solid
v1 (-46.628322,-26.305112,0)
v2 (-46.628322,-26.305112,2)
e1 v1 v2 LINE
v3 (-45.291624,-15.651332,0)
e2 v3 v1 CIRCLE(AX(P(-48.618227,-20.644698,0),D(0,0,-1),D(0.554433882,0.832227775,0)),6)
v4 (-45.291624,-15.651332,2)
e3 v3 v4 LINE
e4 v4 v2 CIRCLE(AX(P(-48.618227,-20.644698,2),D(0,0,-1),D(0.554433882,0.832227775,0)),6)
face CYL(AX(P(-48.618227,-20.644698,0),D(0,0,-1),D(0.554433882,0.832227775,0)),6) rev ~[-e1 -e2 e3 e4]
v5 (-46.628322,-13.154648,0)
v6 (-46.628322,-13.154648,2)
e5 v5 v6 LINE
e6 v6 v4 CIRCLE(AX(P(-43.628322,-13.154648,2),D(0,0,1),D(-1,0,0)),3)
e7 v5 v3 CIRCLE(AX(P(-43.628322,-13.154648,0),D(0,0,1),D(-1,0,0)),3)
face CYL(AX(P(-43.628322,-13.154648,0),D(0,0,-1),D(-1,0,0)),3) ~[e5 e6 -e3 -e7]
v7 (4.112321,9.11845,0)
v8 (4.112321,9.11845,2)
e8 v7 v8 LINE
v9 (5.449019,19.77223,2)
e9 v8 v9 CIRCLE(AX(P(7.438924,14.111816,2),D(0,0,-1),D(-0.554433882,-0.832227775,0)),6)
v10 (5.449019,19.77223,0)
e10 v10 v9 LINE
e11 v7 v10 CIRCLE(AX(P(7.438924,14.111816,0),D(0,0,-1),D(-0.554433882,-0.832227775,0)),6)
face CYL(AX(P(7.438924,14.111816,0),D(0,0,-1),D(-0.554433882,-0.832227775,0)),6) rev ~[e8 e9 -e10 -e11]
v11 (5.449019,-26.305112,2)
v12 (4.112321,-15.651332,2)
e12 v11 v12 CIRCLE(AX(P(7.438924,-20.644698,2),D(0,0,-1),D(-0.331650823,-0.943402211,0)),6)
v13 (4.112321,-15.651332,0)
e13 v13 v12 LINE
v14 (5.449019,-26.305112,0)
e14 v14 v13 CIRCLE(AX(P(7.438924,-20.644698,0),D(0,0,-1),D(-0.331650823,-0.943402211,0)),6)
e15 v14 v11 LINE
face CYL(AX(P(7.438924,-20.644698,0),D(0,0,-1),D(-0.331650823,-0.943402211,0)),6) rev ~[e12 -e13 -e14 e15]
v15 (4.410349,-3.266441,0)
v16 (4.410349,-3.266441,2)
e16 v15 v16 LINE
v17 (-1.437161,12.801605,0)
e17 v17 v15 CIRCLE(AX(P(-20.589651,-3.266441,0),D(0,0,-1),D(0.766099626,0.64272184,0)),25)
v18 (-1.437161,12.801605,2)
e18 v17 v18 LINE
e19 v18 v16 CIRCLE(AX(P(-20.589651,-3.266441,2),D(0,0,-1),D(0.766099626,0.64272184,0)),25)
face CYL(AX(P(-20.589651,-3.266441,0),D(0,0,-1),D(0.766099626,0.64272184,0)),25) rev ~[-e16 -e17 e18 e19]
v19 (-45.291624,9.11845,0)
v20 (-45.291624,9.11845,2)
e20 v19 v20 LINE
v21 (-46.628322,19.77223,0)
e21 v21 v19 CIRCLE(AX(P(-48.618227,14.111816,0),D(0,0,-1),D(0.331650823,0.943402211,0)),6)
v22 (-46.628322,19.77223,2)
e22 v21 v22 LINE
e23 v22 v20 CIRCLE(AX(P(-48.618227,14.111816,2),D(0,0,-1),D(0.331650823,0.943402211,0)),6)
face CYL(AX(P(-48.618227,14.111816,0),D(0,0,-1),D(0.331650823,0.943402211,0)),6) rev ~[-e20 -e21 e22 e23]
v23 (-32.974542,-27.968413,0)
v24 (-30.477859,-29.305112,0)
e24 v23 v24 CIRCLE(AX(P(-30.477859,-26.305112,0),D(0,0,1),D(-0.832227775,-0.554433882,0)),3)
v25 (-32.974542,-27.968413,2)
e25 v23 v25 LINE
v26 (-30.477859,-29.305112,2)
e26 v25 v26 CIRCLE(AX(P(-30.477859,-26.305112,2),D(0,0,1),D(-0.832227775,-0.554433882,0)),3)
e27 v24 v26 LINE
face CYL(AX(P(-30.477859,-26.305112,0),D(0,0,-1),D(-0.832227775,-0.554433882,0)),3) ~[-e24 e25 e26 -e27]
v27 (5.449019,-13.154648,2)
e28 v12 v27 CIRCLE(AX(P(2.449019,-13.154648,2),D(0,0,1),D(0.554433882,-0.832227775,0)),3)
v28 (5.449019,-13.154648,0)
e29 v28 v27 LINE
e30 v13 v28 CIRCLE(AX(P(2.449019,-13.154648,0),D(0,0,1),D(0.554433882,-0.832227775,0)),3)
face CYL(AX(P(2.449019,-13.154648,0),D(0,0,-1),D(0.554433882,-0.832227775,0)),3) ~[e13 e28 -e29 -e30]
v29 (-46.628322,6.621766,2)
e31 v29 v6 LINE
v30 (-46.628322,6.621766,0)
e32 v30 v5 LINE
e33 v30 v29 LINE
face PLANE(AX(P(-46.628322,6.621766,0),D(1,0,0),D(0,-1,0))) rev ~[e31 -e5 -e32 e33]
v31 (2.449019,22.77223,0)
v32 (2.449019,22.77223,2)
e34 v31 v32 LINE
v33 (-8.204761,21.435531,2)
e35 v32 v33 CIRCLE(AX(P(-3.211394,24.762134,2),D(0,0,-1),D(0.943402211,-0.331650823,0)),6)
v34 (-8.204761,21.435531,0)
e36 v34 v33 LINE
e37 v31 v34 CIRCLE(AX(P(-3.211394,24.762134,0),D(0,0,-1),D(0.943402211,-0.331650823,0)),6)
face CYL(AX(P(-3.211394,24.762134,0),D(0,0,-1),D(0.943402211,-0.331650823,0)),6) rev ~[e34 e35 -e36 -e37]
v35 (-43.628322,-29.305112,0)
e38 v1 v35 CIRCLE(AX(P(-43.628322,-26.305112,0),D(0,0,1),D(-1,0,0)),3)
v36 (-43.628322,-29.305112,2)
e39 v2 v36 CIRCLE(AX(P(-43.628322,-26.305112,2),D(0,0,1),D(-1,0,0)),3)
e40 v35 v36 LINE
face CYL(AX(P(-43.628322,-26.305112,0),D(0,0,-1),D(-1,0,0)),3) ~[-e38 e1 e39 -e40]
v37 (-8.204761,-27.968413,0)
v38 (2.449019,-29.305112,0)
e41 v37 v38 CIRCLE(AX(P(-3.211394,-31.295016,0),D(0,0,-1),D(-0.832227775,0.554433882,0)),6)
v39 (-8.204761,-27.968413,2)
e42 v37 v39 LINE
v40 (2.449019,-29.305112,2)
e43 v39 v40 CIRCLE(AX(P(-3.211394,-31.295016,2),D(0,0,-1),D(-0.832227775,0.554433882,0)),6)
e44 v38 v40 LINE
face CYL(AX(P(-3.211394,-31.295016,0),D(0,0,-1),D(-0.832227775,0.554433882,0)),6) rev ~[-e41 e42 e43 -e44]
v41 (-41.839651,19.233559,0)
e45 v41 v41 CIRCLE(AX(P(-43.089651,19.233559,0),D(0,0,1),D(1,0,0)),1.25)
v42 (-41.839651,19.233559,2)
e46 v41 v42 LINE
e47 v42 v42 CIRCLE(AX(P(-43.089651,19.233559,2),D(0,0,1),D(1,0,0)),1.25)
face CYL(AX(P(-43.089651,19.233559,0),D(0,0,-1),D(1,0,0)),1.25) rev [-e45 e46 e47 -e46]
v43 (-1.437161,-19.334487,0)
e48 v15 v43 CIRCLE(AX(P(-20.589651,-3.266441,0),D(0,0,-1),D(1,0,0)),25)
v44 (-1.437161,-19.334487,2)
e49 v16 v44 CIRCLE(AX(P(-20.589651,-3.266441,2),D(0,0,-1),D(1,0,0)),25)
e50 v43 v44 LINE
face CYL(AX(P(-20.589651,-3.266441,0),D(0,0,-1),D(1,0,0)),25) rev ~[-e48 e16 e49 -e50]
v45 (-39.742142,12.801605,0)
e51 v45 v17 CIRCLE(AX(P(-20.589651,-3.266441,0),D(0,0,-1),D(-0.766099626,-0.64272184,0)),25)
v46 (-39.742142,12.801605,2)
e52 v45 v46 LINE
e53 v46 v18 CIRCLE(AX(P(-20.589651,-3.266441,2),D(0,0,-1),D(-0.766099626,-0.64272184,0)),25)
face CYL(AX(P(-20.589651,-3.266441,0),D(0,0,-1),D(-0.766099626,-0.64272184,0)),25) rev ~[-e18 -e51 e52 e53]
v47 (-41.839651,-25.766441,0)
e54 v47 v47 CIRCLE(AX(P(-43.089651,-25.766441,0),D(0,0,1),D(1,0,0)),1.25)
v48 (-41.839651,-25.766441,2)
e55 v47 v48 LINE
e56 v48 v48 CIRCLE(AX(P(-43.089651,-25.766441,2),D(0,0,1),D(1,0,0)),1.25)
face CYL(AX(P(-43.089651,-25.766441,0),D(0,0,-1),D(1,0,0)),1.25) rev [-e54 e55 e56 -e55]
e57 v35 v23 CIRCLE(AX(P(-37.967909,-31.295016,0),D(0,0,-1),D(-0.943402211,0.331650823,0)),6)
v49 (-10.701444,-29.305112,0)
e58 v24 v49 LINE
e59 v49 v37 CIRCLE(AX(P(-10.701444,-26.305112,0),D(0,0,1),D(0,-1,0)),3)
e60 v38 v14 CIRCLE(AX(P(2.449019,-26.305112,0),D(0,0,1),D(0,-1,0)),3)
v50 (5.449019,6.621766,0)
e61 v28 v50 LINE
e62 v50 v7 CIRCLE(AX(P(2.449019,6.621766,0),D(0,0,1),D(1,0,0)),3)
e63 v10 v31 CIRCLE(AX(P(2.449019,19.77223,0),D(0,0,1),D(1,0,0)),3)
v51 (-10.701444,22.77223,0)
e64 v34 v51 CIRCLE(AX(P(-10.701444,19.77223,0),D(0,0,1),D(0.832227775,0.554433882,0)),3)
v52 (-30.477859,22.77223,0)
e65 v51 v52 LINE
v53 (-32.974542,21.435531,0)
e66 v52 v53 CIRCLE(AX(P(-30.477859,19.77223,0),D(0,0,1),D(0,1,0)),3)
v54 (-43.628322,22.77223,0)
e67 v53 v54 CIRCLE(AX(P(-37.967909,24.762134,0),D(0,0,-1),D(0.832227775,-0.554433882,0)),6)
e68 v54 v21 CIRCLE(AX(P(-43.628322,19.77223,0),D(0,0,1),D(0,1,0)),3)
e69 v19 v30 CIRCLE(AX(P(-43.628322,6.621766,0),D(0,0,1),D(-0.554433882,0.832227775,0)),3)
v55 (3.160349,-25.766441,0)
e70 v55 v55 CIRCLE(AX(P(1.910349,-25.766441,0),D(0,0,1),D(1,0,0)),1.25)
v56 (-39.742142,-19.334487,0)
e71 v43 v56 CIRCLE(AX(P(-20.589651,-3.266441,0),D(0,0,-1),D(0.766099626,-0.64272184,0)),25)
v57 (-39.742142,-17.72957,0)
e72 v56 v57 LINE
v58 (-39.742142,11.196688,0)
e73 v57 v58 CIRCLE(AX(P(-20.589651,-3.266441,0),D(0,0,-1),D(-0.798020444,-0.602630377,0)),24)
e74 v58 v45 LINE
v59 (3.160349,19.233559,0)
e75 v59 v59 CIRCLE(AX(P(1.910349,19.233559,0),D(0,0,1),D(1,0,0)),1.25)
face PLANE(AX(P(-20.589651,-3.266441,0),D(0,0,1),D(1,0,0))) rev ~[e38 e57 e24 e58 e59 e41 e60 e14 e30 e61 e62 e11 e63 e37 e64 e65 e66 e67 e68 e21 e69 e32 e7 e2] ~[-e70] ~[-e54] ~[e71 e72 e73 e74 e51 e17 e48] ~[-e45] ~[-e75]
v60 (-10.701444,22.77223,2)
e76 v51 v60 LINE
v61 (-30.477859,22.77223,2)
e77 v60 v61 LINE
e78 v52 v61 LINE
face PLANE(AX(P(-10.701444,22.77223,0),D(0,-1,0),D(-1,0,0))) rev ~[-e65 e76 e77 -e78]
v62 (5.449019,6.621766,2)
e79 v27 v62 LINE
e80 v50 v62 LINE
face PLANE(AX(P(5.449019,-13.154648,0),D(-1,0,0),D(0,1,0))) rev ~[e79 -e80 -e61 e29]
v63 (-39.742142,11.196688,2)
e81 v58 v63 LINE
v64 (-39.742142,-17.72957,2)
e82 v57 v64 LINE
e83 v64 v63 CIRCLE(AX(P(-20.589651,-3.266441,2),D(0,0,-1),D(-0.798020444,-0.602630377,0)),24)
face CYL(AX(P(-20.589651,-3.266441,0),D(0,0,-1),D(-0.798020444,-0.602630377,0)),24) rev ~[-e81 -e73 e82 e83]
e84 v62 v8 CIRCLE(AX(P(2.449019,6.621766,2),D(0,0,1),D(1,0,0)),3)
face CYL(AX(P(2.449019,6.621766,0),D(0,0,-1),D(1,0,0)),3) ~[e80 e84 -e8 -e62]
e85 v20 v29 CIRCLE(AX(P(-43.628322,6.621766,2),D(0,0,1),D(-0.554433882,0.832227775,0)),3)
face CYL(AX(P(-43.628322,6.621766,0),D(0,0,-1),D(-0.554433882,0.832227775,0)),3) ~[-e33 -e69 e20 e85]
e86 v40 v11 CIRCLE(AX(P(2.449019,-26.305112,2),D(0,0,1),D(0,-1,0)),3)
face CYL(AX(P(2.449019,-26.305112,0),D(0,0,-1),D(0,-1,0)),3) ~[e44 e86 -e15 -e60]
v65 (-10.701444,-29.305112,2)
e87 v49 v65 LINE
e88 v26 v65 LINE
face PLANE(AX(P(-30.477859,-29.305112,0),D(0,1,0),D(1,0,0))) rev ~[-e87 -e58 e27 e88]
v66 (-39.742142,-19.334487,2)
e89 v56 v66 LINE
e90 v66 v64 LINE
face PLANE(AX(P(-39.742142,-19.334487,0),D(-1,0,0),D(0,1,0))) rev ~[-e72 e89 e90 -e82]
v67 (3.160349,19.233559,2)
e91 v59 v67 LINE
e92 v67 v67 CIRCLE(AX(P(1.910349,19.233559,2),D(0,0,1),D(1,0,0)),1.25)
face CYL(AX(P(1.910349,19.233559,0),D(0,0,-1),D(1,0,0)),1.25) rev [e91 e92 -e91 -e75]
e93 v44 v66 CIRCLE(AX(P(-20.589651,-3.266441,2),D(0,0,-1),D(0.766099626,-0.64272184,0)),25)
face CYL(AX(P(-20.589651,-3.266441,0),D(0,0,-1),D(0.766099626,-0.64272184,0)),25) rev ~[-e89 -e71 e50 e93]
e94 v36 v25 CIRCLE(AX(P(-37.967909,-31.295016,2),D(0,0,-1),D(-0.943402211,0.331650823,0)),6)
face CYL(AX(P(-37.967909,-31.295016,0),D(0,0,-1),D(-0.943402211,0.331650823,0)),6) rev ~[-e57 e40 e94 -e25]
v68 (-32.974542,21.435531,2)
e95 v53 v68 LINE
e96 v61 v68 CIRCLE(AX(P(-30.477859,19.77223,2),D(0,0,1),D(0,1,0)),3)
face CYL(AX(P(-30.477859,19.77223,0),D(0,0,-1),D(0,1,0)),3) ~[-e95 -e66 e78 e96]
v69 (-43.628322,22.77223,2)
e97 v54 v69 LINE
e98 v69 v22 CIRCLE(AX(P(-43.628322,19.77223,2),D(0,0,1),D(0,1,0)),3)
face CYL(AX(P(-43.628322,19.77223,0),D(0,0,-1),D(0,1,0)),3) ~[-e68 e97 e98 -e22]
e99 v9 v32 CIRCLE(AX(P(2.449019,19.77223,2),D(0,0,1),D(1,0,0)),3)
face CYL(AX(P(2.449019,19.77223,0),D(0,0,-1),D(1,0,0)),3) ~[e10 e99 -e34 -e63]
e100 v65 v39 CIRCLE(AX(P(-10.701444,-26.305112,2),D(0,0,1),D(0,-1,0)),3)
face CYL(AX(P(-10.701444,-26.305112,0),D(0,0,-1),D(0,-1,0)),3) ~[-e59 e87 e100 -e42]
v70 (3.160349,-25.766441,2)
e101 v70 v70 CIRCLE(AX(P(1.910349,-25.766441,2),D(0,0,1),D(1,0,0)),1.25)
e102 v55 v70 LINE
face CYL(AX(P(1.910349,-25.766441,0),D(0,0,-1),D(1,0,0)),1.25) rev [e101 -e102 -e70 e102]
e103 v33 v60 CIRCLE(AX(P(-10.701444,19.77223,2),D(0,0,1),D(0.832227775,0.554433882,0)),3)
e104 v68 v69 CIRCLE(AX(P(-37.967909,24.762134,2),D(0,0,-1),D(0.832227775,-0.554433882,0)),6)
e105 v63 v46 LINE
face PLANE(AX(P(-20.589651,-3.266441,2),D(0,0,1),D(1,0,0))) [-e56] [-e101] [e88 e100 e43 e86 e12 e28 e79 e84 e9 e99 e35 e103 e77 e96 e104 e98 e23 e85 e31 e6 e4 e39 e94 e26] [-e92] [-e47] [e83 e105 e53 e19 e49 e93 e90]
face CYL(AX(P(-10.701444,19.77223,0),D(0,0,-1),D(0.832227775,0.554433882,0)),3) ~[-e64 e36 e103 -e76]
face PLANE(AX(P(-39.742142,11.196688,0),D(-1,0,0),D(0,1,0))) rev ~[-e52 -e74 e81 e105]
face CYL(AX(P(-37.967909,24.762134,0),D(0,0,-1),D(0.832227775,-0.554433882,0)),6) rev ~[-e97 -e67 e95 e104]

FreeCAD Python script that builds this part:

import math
import FreeCAD as App
import Part
import Sketcher
from FreeCAD import Vector
Q = App.Units.Quantity

doc = App.newDocument("Part")
body = doc.addObject("PartDesign::Body", "Body")

# Sketch on XY plane
sketch1 = body.newObject("Sketcher::SketchObject", "Sketch")
sketch1.AttachmentSupport = (doc.getObject("XY_Plane"), [""])
sketch1.MapMode = "FlatFace"
sketch1.addGeometry(Part.ArcOfCircle(Part.Circle(Vector(-10.7, 19.8, 0), Vector(0, 0, 1), 3), math.radians(34), math.radians(90)), False)
sketch1.addGeometry(Part.LineSegment(Vector(-10.7, 22.8, 0), Vector(-30.5, 22.8, 0)), False)
sketch1.addGeometry(Part.ArcOfCircle(Part.Circle(Vector(-30.5, 19.8, 0), Vector(0, 0, 1), 3), math.radians(90), math.radians(146)), False)
sketch1.addGeometry(Part.ArcOfCircle(Part.Circle(Vector(-38, 24.8, 0), Vector(0, 0, 1), 6), math.radians(-161), math.radians(-34)), False)
sketch1.addGeometry(Part.ArcOfCircle(Part.Circle(Vector(-43.6, 19.8, 0), Vector(0, 0, 1), 3), math.radians(90), math.radians(180)), False)
sketch1.addGeometry(Part.ArcOfCircle(Part.Circle(Vector(-48.6, 14.1, 0), Vector(0, 0, 1), 6), math.radians(-56), math.radians(71)), False)
sketch1.addGeometry(Part.ArcOfCircle(Part.Circle(Vector(-43.6, 6.6, 0), Vector(0, 0, 1), 3), math.radians(124), math.radians(180)), False)
sketch1.addGeometry(Part.LineSegment(Vector(-46.6, 6.6, 0), Vector(-46.6, -13.2, 0)), False)
sketch1.addGeometry(Part.ArcOfCircle(Part.Circle(Vector(-43.6, -13.2, 0), Vector(0, 0, 1), 3), math.radians(180), math.radians(236)), False)
sketch1.addGeometry(Part.ArcOfCircle(Part.Circle(Vector(-48.6, -20.6, 0), Vector(0, 0, 1), 6), math.radians(-71), math.radians(56)), False)
sketch1.addGeometry(Part.ArcOfCircle(Part.Circle(Vector(-43.6, -26.3, 0), Vector(0, 0, 1), 3), math.radians(180), math.radians(270)), False)
sketch1.addGeometry(Part.ArcOfCircle(Part.Circle(Vector(-38, -31.3, 0), Vector(0, 0, 1), 6), math.radians(34), math.radians(161)), False)
sketch1.addGeometry(Part.ArcOfCircle(Part.Circle(Vector(-30.5, -26.3, 0), Vector(0, 0, 1), 3), math.radians(-146), math.radians(-90)), False)
sketch1.addGeometry(Part.LineSegment(Vector(-30.5, -29.3, 0), Vector(-10.7, -29.3, 0)), False)
sketch1.addGeometry(Part.ArcOfCircle(Part.Circle(Vector(-10.7, -26.3, 0), Vector(0, 0, 1), 3), math.radians(-90), math.radians(-34)), False)
sketch1.addGeometry(Part.ArcOfCircle(Part.Circle(Vector(-3.2, -31.3, 0), Vector(0, 0, 1), 6), math.radians(19), math.radians(146)), False)
sketch1.addGeometry(Part.ArcOfCircle(Part.Circle(Vector(2.4, -26.3, 0), Vector(0, 0, 1), 3), math.radians(-90), math.radians(0)), False)
sketch1.addGeometry(Part.ArcOfCircle(Part.Circle(Vector(7.4, -20.6, 0), Vector(0, 0, 1), 6), math.radians(124), math.radians(251)), False)
sketch1.addGeometry(Part.ArcOfCircle(Part.Circle(Vector(2.4, -13.2, 0), Vector(0, 0, 1), 3), math.radians(-56), math.radians(0)), False)
sketch1.addGeometry(Part.LineSegment(Vector(5.4, -13.2, 0), Vector(5.4, 6.6, 0)), False)
sketch1.addGeometry(Part.ArcOfCircle(Part.Circle(Vector(2.4, 6.6, 0), Vector(0, 0, 1), 3), math.radians(0), math.radians(56)), False)
sketch1.addGeometry(Part.ArcOfCircle(Part.Circle(Vector(7.4, 14.1, 0), Vector(0, 0, 1), 6), math.radians(109), math.radians(236)), False)
sketch1.addGeometry(Part.ArcOfCircle(Part.Circle(Vector(2.4, 19.8, 0), Vector(0, 0, 1), 3), math.radians(0), math.radians(90)), False)
sketch1.addGeometry(Part.ArcOfCircle(Part.Circle(Vector(-3.2, 24.8, 0), Vector(0, 0, 1), 6), math.radians(-146), math.radians(-19)), False)
sketch1.addGeometry(Part.Circle(Vector(-43.1, -25.8, 0), Vector(0, 0, 1), 1.2), False)
sketch1.addGeometry(Part.Circle(Vector(1.9, -25.8, 0), Vector(0, 0, 1), 1.2), False)
sketch1.addGeometry(Part.Circle(Vector(-43.1, 19.2, 0), Vector(0, 0, 1), 1.2), False)
sketch1.addGeometry(Part.ArcOfCircle(Part.Circle(Vector(-20.6, -3.3, 0), Vector(0, 0, 1), 25), math.radians(40), math.radians(140)), False)
sketch1.addGeometry(Part.ArcOfCircle(Part.Circle(Vector(-20.6, -3.3, 0), Vector(0, 0, 1), 25), math.radians(0), math.radians(40)), False)
sketch1.addGeometry(Part.ArcOfCircle(Part.Circle(Vector(-20.6, -3.3, 0), Vector(0, 0, 1), 25), math.radians(-40), math.radians(0)), False)
sketch1.addGeometry(Part.ArcOfCircle(Part.Circle(Vector(-20.6, -3.3, 0), Vector(0, 0, 1), 25), math.radians(-140), math.radians(-40)), False)
sketch1.addGeometry(Part.LineSegment(Vector(-39.7, -19.3, 0), Vector(-39.7, -17.7, 0)), False)
sketch1.addGeometry(Part.ArcOfCircle(Part.Circle(Vector(-20.6, -3.3, 0), Vector(0, 0, 1), 24), math.radians(143), math.radians(217)), False)
sketch1.addGeometry(Part.LineSegment(Vector(-39.7, 11.2, 0), Vector(-39.7, 12.8, 0)), False)
sketch1.addGeometry(Part.Circle(Vector(1.9, 19.2, 0), Vector(0, 0, 1), 1.2), False)
sketch1.addConstraint(Sketcher.Constraint("Tangent", 0, 2, 1, 1))
sketch1.addConstraint(Sketcher.Constraint("Tangent", 1, 2, 2, 1))
sketch1.addConstraint(Sketcher.Constraint("Tangent", 2, 2, 3, 2))
sketch1.addConstraint(Sketcher.Constraint("Coincident", 3, 1, 4, 1))
sketch1.addConstraint(Sketcher.Constraint("Coincident", 4, 2, 5, 2))
sketch1.addConstraint(Sketcher.Constraint("Tangent", 5, 1, 6, 1))
sketch1.addConstraint(Sketcher.Constraint("Tangent", 6, 2, 7, 1))
sketch1.addConstraint(Sketcher.Constraint("Tangent", 7, 2, 8, 1))
sketch1.addConstraint(Sketcher.Constraint("Tangent", 8, 2, 9, 2))
sketch1.addConstraint(Sketcher.Constraint("Coincident", 9, 1, 10, 1))
sketch1.addConstraint(Sketcher.Constraint("Coincident", 10, 2, 11, 2))
sketch1.addConstraint(Sketcher.Constraint("Tangent", 11, 1, 12, 1))
sketch1.addConstraint(Sketcher.Constraint("Tangent", 12, 2, 13, 1))
sketch1.addConstraint(Sketcher.Constraint("Tangent", 13, 2, 14, 1))
sketch1.addConstraint(Sketcher.Constraint("Tangent", 14, 2, 15, 2))
sketch1.addConstraint(Sketcher.Constraint("Coincident", 15, 1, 16, 1))
sketch1.addConstraint(Sketcher.Constraint("Coincident", 16, 2, 17, 2))
sketch1.addConstraint(Sketcher.Constraint("Tangent", 17, 1, 18, 1))
sketch1.addConstraint(Sketcher.Constraint("Tangent", 18, 2, 19, 1))
sketch1.addConstraint(Sketcher.Constraint("Tangent", 19, 2, 20, 1))
sketch1.addConstraint(Sketcher.Constraint("Tangent", 20, 2, 21, 2))
sketch1.addConstraint(Sketcher.Constraint("Coincident", 21, 1, 22, 1))
sketch1.addConstraint(Sketcher.Constraint("Coincident", 22, 2, 23, 2))
sketch1.addConstraint(Sketcher.Constraint("Tangent", 23, 1, 0, 1))
sketch1.addConstraint(Sketcher.Constraint("Tangent", 27, 1, 28, 2))
sketch1.addConstraint(Sketcher.Constraint("Tangent", 28, 1, 29, 2))
sketch1.addConstraint(Sketcher.Constraint("Tangent", 29, 1, 30, 2))
sketch1.addConstraint(Sketcher.Constraint("Coincident", 30, 1, 31, 1))
sketch1.addConstraint(Sketcher.Constraint("Coincident", 31, 2, 32, 2))
sketch1.addConstraint(Sketcher.Constraint("Coincident", 32, 1, 33, 1))
sketch1.addConstraint(Sketcher.Constraint("Coincident", 33, 2, 27, 2))
sketch1.addConstraint(Sketcher.Constraint("Horizontal", 1))
sketch1.addConstraint(Sketcher.Constraint("Vertical", 7))
sketch1.addConstraint(Sketcher.Constraint("Horizontal", 13))
sketch1.addConstraint(Sketcher.Constraint("Vertical", 19))
sketch1.addConstraint(Sketcher.Constraint("Vertical", 31))
sketch1.addConstraint(Sketcher.Constraint("Vertical", 33))
sketch1.addConstraint(Sketcher.Constraint("Coincident", 29, 3, 27, 3))
sketch1.addConstraint(Sketcher.Constraint("Coincident", 32, 3, 27, 3))
sketch1.addConstraint(Sketcher.Constraint("Equal", 0, 2))
sketch1.addConstraint(Sketcher.Constraint("Equal", 2, 4))
sketch1.addConstraint(Sketcher.Constraint("Equal", 3, 5))
sketch1.addConstraint(Sketcher.Constraint("Equal", 4, 6))
sketch1.addConstraint(Sketcher.Constraint("Equal", 6, 8))
sketch1.addConstraint(Sketcher.Constraint("Equal", 5, 9))
sketch1.addConstraint(Sketcher.Constraint("Equal", 8, 10))
sketch1.addConstraint(Sketcher.Constraint("Equal", 9, 11))
sketch1.addConstraint(Sketcher.Constraint("Equal", 10, 12))
sketch1.addConstraint(Sketcher.Constraint("Equal", 12, 14))
sketch1.addConstraint(Sketcher.Constraint("Equal", 11, 15))
sketch1.addConstraint(Sketcher.Constraint("Equal", 14, 16))
sketch1.addConstraint(Sketcher.Constraint("Equal", 15, 17))
sketch1.addConstraint(Sketcher.Constraint("Equal", 16, 18))
sketch1.addConstraint(Sketcher.Constraint("Equal", 18, 20))
sketch1.addConstraint(Sketcher.Constraint("Equal", 17, 21))
sketch1.addConstraint(Sketcher.Constraint("Equal", 20, 22))
sketch1.addConstraint(Sketcher.Constraint("Equal", 21, 23))
sketch1.addConstraint(Sketcher.Constraint("Equal", 24, 25))
sketch1.addConstraint(Sketcher.Constraint("Equal", 25, 26))
sketch1.addConstraint(Sketcher.Constraint("Equal", 29, 30))
sketch1.addConstraint(Sketcher.Constraint("Equal", 26, 34))
sketch1.addConstraint(Sketcher.Constraint("Horizontal", 2, 3, 4, 3))
sketch1.addConstraint(Sketcher.Constraint("Horizontal", 10, 3, 12, 3))
sketch1.addConstraint(Sketcher.Constraint("Horizontal", 11, 3, 15, 3))
sketch1.addConstraint(Sketcher.Constraint("Horizontal", 14, 3, 16, 3))
sketch1.addConstraint(Sketcher.Constraint("Horizontal", 9, 3, 17, 3))
sketch1.addConstraint(Sketcher.Constraint("Horizontal", 8, 3, 18, 3))
sketch1.addConstraint(Sketcher.Constraint("Horizontal", 6, 3, 20, 3))
sketch1.addConstraint(Sketcher.Constraint("Horizontal", 5, 3, 21, 3))
sketch1.addConstraint(Sketcher.Constraint("Horizontal", 4, 3, 22, 3))
sketch1.addConstraint(Sketcher.Constraint("Horizontal", 3, 3, 23, 3))
sketch1.addConstraint(Sketcher.Constraint("Horizontal", 24, 3, 25, 3))
sketch1.addConstraint(Sketcher.Constraint("Horizontal", 26, 3, 34, 3))
sketch1.addConstraint(Sketcher.Constraint("Horizontal", 22, 3, 4, 2))
sketch1.addConstraint(Sketcher.Constraint("Horizontal", 16, 3, 9, 1))
sketch1.addConstraint(Sketcher.Constraint("Horizontal", 9, 1, 16, 2))
sketch1.addConstraint(Sketcher.Constraint("Horizontal", 4, 2, 21, 1))
sketch1.addConstraint(Sketcher.Constraint("Horizontal", 32, 3, 28, 1))
sketch1.addConstraint(Sketcher.Constraint("Horizontal", 29, 1, 30, 1))
sketch1.addConstraint(Sketcher.Constraint("Horizontal", 27, 1, 33, 2))
sketch1.addConstraint(Sketcher.Constraint("Vertical", 4, 3, 6, 3))
sketch1.addConstraint(Sketcher.Constraint("Vertical", 5, 3, 9, 3))
sketch1.addConstraint(Sketcher.Constraint("Vertical", 8, 3, 10, 3))
sketch1.addConstraint(Sketcher.Constraint("Vertical", 3, 3, 11, 3))
sketch1.addConstraint(Sketcher.Constraint("Vertical", 2, 3, 12, 3))
sketch1.addConstraint(Sketcher.Constraint("Vertical", 0, 3, 14, 3))
sketch1.addConstraint(Sketcher.Constraint("Vertical", 24, 3, 26, 3))
sketch1.addConstraint(Sketcher.Constraint("Vertical", 25, 3, 34, 3))
sketch1.addConstraint(Sketcher.Constraint("Vertical", 10, 3, 3, 1))
sketch1.addConstraint(Sketcher.Constraint("Vertical", 22, 3, 15, 1))
sketch1.addConstraint(Sketcher.Constraint("Vertical", 27, 1, 29, 1))
sketch1.addConstraint(Sketcher.Constraint("Equal", 13, 7))
sketch1.addConstraint(Sketcher.Constraint("Radius", 0, Q("3 mm")))
sketch1.addConstraint(Sketcher.Constraint("Radius", 3, Q("6 mm")))
sketch1.addConstraint(Sketcher.Constraint("Radius", 27, Q("25 mm")))
sketch1.addConstraint(Sketcher.Constraint("Radius", 32, Q("24 mm")))
sketch1.addConstraint(Sketcher.Constraint("Diameter", 24, Q("2.5 mm")))
sketch1.addConstraint(Sketcher.Constraint("DistanceY", 9, 3, -1, 1, Q("20.644698 mm")))
sketch1.addConstraint(Sketcher.Constraint("DistanceY", 2, 2, 1, 2, Q("1.336698 mm")))
sketch1.addConstraint(Sketcher.Constraint("DistanceX", 5, 1, 6, 3, Q("1.663302 mm")))
sketch1.addConstraint(Sketcher.Constraint("DistanceX", 1, 2, 1, 1, Q("19.776415 mm")))
sketch1.addConstraint(Sketcher.Constraint("DistanceY", 31, 1, 31, 2, Q("1.604917 mm")))
sketch1.addConstraint(Sketcher.Constraint("DistanceX", 2, 3, -1, 1, Q("30.477859 mm")))
sketch1.addConstraint(Sketcher.Constraint("DistanceX", 24, 3, -1, 1, Q("43.089651 mm")))
sketch1.addConstraint(Sketcher.Constraint("DistanceY", 24, 3, -1, 1, Q("25.766441 mm")))
sketch1.addConstraint(Sketcher.Constraint("DistanceX", -1, 1, 25, 3, Q("1.910349 mm")))
sketch1.addConstraint(Sketcher.Constraint("DistanceY", -1, 1, 26, 3, Q("19.233559 mm")))
sketch1.addConstraint(Sketcher.Constraint("DistanceX", 27, 3, -1, 1, Q("20.589651 mm")))
sketch1.addConstraint(Sketcher.Constraint("DistanceY", 27, 3, -1, 1, Q("3.266441 mm")))
pad1 = body.newObject("PartDesign::Pad", "Pad")
pad1.Profile = sketch1
pad1.Length = 2

doc.recompute()
